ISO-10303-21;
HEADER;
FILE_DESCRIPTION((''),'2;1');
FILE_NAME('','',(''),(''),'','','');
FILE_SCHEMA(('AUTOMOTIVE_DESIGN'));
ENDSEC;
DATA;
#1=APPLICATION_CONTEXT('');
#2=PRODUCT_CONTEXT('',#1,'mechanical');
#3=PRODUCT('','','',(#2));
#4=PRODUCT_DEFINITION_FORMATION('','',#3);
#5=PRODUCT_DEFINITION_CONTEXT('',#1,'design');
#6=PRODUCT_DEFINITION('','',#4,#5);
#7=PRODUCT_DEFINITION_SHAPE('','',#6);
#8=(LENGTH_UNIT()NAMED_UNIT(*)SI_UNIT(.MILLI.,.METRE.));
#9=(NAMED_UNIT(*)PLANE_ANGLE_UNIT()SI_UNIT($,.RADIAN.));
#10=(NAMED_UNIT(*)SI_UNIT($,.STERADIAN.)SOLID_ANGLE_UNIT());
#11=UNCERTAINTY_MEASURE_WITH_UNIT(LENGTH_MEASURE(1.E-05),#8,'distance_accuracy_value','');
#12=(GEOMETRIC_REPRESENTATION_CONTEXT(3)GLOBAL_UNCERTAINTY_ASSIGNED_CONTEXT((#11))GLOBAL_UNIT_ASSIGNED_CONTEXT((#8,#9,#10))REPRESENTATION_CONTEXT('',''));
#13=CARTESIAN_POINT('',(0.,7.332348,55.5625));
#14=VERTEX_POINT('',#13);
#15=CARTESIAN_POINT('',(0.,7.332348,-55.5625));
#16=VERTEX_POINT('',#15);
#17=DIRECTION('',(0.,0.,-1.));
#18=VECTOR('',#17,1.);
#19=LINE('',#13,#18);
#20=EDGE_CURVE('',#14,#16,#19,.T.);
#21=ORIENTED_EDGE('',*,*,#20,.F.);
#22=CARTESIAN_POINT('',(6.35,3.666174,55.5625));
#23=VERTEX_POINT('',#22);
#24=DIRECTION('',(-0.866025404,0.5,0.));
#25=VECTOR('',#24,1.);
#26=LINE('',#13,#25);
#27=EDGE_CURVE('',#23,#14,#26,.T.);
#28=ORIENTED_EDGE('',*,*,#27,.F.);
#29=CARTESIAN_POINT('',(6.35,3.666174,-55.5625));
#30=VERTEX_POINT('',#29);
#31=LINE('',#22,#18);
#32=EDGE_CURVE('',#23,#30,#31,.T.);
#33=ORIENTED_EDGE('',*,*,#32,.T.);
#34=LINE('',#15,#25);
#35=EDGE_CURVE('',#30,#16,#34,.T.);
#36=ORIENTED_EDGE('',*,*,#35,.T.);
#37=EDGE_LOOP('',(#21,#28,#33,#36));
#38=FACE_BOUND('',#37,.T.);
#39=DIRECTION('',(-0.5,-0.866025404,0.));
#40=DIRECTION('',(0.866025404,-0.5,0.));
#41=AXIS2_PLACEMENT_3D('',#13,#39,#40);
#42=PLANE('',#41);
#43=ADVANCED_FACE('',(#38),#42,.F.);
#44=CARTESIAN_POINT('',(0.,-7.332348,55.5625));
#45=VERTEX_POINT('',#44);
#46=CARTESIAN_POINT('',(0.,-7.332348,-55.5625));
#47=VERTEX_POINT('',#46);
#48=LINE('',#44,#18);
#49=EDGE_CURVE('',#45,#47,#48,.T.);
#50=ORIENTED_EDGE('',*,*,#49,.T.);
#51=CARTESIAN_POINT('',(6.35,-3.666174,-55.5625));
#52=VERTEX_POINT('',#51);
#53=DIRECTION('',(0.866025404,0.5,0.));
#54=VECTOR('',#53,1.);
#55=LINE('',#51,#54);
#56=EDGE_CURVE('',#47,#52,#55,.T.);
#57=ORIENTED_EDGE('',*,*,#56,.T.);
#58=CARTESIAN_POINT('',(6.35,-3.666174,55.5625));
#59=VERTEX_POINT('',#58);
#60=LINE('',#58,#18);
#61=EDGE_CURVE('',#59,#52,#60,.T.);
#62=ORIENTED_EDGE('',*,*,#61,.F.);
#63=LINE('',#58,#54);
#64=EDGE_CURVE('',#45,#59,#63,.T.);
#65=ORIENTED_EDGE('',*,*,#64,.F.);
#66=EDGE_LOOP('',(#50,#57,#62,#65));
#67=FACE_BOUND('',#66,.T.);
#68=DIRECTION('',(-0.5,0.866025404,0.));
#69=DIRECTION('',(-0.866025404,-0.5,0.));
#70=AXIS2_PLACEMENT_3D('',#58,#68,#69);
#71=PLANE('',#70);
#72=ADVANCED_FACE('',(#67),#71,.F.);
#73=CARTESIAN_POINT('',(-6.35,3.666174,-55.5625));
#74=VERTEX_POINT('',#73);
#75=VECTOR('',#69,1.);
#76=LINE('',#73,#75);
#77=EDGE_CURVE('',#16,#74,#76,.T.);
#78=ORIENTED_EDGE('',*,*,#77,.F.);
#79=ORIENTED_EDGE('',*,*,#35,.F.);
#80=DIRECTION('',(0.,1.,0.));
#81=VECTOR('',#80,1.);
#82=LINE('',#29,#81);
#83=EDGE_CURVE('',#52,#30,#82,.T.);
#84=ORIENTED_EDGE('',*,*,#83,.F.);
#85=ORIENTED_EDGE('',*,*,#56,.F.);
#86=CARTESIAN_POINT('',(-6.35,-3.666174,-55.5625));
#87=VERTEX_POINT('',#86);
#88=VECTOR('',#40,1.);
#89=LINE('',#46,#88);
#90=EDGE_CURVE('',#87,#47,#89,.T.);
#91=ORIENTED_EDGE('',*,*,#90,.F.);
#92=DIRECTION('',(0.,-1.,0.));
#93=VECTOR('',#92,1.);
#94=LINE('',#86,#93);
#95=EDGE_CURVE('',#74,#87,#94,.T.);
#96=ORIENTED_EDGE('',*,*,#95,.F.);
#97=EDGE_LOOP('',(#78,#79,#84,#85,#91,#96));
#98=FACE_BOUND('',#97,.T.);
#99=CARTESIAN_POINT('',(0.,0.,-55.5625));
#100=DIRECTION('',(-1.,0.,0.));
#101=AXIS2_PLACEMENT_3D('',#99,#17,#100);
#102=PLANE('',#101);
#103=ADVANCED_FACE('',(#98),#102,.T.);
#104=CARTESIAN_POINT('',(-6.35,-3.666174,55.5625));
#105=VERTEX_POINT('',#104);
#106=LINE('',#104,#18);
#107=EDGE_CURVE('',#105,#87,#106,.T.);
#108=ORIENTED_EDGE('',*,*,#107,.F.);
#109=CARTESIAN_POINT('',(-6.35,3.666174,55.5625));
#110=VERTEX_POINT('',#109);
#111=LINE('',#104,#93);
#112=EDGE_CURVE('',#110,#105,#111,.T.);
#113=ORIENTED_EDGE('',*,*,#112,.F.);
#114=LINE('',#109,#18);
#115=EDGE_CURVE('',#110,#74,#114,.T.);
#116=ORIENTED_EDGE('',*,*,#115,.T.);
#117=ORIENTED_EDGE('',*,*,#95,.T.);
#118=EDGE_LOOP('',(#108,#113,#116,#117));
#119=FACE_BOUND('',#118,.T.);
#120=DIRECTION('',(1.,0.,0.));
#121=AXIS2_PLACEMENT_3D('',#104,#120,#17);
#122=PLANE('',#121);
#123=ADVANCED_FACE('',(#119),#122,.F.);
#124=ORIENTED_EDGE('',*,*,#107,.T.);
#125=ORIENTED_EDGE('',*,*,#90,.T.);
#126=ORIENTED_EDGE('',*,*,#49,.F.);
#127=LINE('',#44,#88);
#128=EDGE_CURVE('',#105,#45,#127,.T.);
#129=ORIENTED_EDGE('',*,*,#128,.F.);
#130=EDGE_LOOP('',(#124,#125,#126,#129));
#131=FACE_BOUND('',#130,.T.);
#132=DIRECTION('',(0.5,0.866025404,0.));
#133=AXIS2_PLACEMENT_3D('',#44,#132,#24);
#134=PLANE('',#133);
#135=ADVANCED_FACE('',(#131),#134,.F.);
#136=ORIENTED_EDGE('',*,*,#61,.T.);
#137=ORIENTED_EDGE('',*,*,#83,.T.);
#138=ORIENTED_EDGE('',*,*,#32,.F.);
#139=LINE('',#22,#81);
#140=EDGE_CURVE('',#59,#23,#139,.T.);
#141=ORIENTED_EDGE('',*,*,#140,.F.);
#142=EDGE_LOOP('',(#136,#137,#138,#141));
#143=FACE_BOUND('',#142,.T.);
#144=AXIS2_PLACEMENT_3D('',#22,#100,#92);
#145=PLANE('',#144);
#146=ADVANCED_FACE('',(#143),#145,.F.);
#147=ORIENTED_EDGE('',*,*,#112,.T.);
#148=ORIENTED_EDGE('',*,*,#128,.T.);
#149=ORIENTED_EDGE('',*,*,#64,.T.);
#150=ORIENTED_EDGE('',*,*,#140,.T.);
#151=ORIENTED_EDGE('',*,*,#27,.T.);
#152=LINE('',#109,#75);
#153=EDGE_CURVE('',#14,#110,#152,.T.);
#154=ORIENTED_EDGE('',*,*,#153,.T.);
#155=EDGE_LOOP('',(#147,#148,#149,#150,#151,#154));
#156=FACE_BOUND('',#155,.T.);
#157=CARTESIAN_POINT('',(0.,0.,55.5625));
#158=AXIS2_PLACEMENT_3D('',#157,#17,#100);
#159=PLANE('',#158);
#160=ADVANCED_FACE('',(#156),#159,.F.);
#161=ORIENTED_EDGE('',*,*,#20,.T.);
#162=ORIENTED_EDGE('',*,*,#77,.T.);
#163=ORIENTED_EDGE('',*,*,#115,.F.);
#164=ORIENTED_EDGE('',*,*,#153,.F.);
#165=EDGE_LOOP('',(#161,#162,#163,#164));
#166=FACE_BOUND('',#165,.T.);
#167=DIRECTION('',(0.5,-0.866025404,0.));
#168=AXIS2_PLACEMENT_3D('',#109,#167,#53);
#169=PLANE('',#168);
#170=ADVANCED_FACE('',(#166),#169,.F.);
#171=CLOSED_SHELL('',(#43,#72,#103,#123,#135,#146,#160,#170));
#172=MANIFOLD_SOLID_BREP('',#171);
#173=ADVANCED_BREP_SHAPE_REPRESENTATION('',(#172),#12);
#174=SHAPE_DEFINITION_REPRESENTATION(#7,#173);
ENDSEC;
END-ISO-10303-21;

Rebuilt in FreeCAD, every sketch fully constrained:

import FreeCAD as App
import Part
import Sketcher
from FreeCAD import Vector
Q = App.Units.Quantity

doc = App.newDocument("Part")
params = doc.addObject("Spreadsheet::Sheet", "Params")
for row, (alias, value) in enumerate([
    ("pad1_length", "4.375 in"),
], start=1):
    params.set(f"A{row}", alias)
    params.set(f"B{row}", "=" + value)
    params.setAlias(f"B{row}", alias)

body = doc.addObject("PartDesign::Body", "Body")

# Sketch on XY plane
sketch1 = doc.addObject("Sketcher::SketchObject", "Sketch")
body.addObject(sketch1)
sketch1.AttachmentSupport = (doc.XY_Plane, [""])
sketch1.MapMode = "FlatFace"
sketch1.addGeometry(Part.LineSegment(Vector(6, 4, 0), Vector(0, 7, 0)), False)
sketch1.addGeometry(Part.LineSegment(Vector(0, 7, 0), Vector(-6, 4, 0)), False)
sketch1.addGeometry(Part.LineSegment(Vector(-6, 4, 0), Vector(-6, -4, 0)), False)
sketch1.addGeometry(Part.LineSegment(Vector(-6, -4, 0), Vector(0, -7, 0)), False)
sketch1.addGeometry(Part.LineSegment(Vector(0, -7, 0), Vector(6, -4, 0)), False)
sketch1.addGeometry(Part.LineSegment(Vector(6, -4, 0), Vector(6, 4, 0)), False)
sketch1.addConstraint(Sketcher.Constraint("Coincident", 0, 2, 1, 1))
sketch1.addConstraint(Sketcher.Constraint("Coincident", 1, 2, 2, 1))
sketch1.addConstraint(Sketcher.Constraint("Coincident", 2, 2, 3, 1))
sketch1.addConstraint(Sketcher.Constraint("Coincident", 3, 2, 4, 1))
sketch1.addConstraint(Sketcher.Constraint("Coincident", 4, 2, 5, 1))
sketch1.addConstraint(Sketcher.Constraint("Coincident", 5, 2, 0, 1))
sketch1.addConstraint(Sketcher.Constraint("Vertical", 2))
sketch1.addConstraint(Sketcher.Constraint("Vertical", 5))
sketch1.addConstraint(Sketcher.Constraint("Symmetric", 0, 2, 3, 2, -1, 1))
sketch1.addConstraint(Sketcher.Constraint("Symmetric", 1, 2, 4, 2, -1, 1))
sketch1.addConstraint(Sketcher.Constraint("PointOnObject", 0, 2, -2))
sketch1.addConstraint(Sketcher.Constraint("Parallel", 0, 3))
sketch1.addConstraint(Sketcher.Constraint("Horizontal", 2, 2, 4, 2))
sketch1.addConstraint(Sketcher.Constraint("Angle", 0, Q("150 deg")))
sketch1.addConstraint(Sketcher.Constraint("DistanceX", 2, 2, 4, 2, Q("0.5 in")))
sketch1.addConstraint(Sketcher.Constraint("DistanceY", 2, 2, 2, 1, 7.332348))
pad1 = doc.addObject("PartDesign::Pad", "Pad")
body.addObject(pad1)
pad1.Profile = sketch1
pad1.setExpression("Length", "Params.pad1_length")
pad1.Midplane = True

doc.recompute()
